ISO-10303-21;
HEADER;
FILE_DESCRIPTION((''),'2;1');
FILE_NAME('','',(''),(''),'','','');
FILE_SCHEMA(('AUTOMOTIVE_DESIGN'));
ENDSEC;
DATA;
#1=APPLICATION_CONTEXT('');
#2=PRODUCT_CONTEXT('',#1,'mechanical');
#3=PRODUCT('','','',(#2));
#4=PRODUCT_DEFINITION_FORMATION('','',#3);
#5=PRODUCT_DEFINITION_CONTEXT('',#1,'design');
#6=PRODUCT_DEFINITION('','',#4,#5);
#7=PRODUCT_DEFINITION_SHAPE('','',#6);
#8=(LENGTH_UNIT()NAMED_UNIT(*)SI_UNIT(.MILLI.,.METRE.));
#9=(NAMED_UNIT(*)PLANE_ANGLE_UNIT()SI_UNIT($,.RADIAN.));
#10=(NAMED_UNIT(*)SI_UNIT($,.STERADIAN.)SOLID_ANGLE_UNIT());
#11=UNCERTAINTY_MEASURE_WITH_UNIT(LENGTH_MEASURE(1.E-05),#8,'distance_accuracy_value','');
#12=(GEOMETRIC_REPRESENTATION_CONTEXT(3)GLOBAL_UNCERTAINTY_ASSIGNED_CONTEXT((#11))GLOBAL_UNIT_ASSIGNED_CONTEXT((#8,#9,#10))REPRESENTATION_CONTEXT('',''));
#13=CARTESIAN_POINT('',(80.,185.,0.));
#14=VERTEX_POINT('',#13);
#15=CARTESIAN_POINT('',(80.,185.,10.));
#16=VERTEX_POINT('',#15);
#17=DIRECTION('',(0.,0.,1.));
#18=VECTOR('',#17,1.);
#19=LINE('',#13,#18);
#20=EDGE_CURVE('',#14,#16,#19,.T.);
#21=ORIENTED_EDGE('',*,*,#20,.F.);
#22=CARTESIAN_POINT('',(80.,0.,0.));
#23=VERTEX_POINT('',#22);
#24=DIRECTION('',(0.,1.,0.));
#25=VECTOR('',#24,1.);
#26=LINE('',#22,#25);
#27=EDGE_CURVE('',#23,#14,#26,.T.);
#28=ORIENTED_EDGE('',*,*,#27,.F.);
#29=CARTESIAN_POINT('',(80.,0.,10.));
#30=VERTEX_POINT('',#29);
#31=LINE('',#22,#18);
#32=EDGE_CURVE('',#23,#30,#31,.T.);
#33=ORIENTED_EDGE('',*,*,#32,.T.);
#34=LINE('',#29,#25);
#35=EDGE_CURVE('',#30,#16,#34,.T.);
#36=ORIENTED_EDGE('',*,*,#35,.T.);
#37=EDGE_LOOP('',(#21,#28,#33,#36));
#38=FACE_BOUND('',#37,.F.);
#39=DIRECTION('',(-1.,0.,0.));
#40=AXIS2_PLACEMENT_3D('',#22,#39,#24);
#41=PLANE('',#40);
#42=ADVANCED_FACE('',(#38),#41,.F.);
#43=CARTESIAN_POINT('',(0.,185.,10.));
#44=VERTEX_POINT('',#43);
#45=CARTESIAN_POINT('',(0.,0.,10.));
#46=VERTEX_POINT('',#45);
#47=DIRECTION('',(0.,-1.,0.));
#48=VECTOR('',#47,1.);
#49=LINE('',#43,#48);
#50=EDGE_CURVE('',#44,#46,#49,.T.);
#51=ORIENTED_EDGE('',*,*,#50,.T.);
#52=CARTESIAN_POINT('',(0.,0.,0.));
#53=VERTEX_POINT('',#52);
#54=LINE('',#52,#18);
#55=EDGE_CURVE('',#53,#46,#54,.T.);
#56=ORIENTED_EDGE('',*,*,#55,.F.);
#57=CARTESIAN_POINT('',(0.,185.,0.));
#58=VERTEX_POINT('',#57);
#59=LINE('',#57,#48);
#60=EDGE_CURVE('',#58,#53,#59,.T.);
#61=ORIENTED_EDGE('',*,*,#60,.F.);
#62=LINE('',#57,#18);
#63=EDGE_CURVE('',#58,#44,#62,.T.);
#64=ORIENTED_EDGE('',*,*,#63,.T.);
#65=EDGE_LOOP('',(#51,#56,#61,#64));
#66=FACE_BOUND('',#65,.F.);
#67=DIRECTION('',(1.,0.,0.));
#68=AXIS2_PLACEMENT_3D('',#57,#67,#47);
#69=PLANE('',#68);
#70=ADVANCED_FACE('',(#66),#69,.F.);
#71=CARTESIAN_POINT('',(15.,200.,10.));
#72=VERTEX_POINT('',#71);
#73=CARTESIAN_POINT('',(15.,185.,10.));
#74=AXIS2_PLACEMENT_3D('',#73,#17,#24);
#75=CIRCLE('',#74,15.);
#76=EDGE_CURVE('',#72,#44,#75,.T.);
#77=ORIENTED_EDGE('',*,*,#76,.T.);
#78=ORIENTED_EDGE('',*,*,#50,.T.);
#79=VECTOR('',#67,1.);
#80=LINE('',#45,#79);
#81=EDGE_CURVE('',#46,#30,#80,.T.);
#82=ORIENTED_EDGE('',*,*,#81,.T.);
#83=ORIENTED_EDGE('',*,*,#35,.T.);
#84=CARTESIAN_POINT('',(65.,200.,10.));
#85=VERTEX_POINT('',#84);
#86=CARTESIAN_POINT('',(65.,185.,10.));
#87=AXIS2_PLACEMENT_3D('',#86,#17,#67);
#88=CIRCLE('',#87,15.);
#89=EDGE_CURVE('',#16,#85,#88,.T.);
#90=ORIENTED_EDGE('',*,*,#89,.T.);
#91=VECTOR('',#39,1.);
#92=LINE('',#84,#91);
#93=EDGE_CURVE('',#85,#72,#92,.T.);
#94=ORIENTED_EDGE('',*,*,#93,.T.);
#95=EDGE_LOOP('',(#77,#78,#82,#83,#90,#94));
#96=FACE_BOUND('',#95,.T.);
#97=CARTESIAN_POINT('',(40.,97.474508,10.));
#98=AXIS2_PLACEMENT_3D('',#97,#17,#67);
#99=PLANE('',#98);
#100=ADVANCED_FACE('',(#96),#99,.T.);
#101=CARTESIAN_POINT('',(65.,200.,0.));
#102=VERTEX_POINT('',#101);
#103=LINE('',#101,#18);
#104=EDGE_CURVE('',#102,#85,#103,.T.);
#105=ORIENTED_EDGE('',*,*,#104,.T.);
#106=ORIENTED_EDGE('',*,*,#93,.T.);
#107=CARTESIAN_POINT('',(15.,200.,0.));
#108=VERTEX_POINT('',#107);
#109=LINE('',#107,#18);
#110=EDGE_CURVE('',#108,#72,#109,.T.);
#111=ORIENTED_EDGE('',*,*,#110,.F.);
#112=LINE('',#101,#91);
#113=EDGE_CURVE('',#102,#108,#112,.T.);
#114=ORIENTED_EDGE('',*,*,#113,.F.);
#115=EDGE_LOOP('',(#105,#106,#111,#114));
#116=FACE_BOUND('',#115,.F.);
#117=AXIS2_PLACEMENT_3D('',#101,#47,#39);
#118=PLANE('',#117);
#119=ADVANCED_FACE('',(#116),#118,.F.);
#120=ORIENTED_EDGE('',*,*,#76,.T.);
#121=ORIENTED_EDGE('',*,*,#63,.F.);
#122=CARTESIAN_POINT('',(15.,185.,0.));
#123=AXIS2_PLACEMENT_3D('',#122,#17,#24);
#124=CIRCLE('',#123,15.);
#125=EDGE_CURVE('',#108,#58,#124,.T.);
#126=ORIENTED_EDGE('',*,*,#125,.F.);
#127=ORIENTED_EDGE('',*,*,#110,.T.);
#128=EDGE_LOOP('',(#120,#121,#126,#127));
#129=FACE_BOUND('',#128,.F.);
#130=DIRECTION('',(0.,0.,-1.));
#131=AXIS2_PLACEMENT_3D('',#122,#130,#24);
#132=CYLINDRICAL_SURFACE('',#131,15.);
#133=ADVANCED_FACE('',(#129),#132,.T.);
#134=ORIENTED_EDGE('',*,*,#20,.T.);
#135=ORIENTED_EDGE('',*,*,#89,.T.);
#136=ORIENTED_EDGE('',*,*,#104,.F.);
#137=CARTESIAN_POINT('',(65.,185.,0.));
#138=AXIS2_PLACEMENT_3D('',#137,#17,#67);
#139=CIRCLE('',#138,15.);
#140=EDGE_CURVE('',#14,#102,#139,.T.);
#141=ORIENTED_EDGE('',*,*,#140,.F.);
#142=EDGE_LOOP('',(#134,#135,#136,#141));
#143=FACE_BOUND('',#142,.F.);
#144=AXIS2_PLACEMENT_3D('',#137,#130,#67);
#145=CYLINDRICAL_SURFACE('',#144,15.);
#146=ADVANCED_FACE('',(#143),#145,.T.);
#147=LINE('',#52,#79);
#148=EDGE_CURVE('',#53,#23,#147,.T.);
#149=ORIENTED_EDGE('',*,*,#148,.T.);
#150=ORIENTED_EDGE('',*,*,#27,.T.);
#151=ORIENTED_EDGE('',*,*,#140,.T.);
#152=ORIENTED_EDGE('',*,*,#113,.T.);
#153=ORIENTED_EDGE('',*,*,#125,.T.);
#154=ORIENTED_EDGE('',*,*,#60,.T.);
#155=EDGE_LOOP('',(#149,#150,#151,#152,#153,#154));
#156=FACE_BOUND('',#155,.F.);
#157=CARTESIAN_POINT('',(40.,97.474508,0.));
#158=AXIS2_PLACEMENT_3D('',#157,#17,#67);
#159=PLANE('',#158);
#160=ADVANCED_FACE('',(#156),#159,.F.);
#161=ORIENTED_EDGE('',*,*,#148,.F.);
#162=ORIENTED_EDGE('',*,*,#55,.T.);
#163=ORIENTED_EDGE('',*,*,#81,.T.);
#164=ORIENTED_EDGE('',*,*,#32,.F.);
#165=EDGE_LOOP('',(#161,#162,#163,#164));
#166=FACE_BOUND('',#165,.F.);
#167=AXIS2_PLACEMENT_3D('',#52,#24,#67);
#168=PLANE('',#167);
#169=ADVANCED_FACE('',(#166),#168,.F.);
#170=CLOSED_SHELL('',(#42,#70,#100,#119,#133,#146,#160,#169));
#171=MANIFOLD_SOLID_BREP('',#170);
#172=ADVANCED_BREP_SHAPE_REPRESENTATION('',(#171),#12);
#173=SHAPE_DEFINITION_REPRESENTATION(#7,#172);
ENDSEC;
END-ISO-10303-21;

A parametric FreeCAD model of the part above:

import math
import FreeCAD as App
import Part
import Sketcher
from FreeCAD import Vector

doc = App.newDocument("Part")
body = doc.addObject("PartDesign::Body", "Body")

# Sketch on XY plane
sketch1 = body.newObject("Sketcher::SketchObject", "Sketch")
sketch1.AttachmentSupport = (doc.getObject("XY_Plane"), [""])
sketch1.MapMode = "FlatFace"
sketch1.addGeometry(Part.LineSegment(Vector(11.024416, 29.640043, 0), Vector(-11.024416, 29.640043, 0)), False)
sketch1.addGeometry(Part.BSplineCurve([Vector(-11.024416, 29.640043, 0), Vector(-19.765284, 29.640043, 0), Vector(-31.264513, 26.86624, 0), Vector(-34.477837, 15.837702, 0), Vector(-34.61751, 8.574784, 0)], [4, 1, 4], [0, 0.515660433, 1], False, 3, [1, 1, 1, 1, 1], False), False)
sketch1.addGeometry(Part.LineSegment(Vector(-34.61751, 8.574784, 0), Vector(-34.61751, -34.960084, 0)), False)
sketch1.addGeometry(Part.LineSegment(Vector(-34.61751, -34.960084, 0), Vector(34.61751, -34.960084, 0)), False)
sketch1.addGeometry(Part.LineSegment(Vector(34.61751, -34.960084, 0), Vector(34.61751, 8.574784, 0)), False)
sketch1.addGeometry(Part.BSplineCurve([Vector(11.024416, 29.640043, 0), Vector(19.765284, 29.640043, 0), Vector(31.264513, 26.86624, 0), Vector(34.477837, 15.837702, 0), Vector(34.61751, 8.574784, 0)], [4, 1, 4], [0, 0.515660433, 1], False, 3, [1, 1, 1, 1, 1], False), False)
sketch1.addConstraint(Sketcher.Constraint("Block", 1))
sketch1.addConstraint(Sketcher.Constraint("Block", 5))
sketch1.addConstraint(Sketcher.Constraint("Coincident", 0, 2, 1, 1))
sketch1.addConstraint(Sketcher.Constraint("Coincident", 1, 2, 2, 1))
sketch1.addConstraint(Sketcher.Constraint("Coincident", 2, 2, 3, 1))
sketch1.addConstraint(Sketcher.Constraint("Coincident", 3, 2, 4, 1))
sketch1.addConstraint(Sketcher.Constraint("Coincident", 4, 2, 5, 2))
sketch1.addConstraint(Sketcher.Constraint("Coincident", 5, 1, 0, 1))
sketch1.addConstraint(Sketcher.Constraint("Vertical", 2))
sketch1.addConstraint(Sketcher.Constraint("Horizontal", 3))
sketch1.addConstraint(Sketcher.Constraint("Vertical", 4))
sketch1.addConstraint(Sketcher.Constraint("DistanceY", 2, 2, 2, 1, 43.534867))
pad1 = body.newObject("PartDesign::Pad", "Pad")
pad1.Profile = sketch1
pad1.Length = 2.54
body2 = doc.addObject("PartDesign::Body", "Body001")

# Sketch on XY plane
sketch2 = body2.newObject("Sketcher::SketchObject", "Sketch001")
sketch2.AttachmentSupport = (doc.getObject("XY_Plane001"), [""])
sketch2.MapMode = "FlatFace"
sketch2.addGeometry(Part.LineSegment(Vector(0, 185, 0), Vector(0, 0, 0)), False)
sketch2.addGeometry(Part.LineSegment(Vector(0, 0, 0), Vector(80, 0, 0)), False)
sketch2.addGeometry(Part.LineSegment(Vector(80, 0, 0), Vector(80, 185, 0)), False)
sketch2.addGeometry(Part.ArcOfCircle(Part.Circle(Vector(65, 185, 0), Vector(0, 0, 1), 15), math.radians(0), math.radians(90)), False)
sketch2.addGeometry(Part.LineSegment(Vector(65, 200, 0), Vector(15, 200, 0)), False)
sketch2.addGeometry(Part.ArcOfCircle(Part.Circle(Vector(15, 185, 0), Vector(0, 0, 1), 15), math.radians(90), math.radians(180)), False)
sketch2.addConstraint(Sketcher.Constraint("Coincident", 0, 2, 1, 1))
sketch2.addConstraint(Sketcher.Constraint("Coincident", 1, 2, 2, 1))
sketch2.addConstraint(Sketcher.Constraint("Tangent", 2, 2, 3, 1))
sketch2.addConstraint(Sketcher.Constraint("Tangent", 3, 2, 4, 1))
sketch2.addConstraint(Sketcher.Constraint("Tangent", 4, 2, 5, 1))
sketch2.addConstraint(Sketcher.Constraint("Tangent", 5, 2, 0, 1))
sketch2.addConstraint(Sketcher.Constraint("Vertical", 0))
sketch2.addConstraint(Sketcher.Constraint("Horizontal", 1))
sketch2.addConstraint(Sketcher.Constraint("Vertical", 2))
sketch2.addConstraint(Sketcher.Constraint("Horizontal", 4))
sketch2.addConstraint(Sketcher.Constraint("Coincident", 0, 2, -1, 1))
sketch2.addConstraint(Sketcher.Constraint("Equal", 3, 5))
sketch2.addConstraint(Sketcher.Constraint("Radius", 3, 15.0))
sketch2.addConstraint(Sketcher.Constraint("DistanceX", 1, 1, 1, 2, 80.0))
sketch2.addConstraint(Sketcher.Constraint("DistanceY", 0, 2, 0, 1, 185.0))
pad2 = body2.newObject("PartDesign::Pad", "Pad001")
pad2.Profile = sketch2
pad2.Length = 10
body.Visibility = False

doc.recompute()
